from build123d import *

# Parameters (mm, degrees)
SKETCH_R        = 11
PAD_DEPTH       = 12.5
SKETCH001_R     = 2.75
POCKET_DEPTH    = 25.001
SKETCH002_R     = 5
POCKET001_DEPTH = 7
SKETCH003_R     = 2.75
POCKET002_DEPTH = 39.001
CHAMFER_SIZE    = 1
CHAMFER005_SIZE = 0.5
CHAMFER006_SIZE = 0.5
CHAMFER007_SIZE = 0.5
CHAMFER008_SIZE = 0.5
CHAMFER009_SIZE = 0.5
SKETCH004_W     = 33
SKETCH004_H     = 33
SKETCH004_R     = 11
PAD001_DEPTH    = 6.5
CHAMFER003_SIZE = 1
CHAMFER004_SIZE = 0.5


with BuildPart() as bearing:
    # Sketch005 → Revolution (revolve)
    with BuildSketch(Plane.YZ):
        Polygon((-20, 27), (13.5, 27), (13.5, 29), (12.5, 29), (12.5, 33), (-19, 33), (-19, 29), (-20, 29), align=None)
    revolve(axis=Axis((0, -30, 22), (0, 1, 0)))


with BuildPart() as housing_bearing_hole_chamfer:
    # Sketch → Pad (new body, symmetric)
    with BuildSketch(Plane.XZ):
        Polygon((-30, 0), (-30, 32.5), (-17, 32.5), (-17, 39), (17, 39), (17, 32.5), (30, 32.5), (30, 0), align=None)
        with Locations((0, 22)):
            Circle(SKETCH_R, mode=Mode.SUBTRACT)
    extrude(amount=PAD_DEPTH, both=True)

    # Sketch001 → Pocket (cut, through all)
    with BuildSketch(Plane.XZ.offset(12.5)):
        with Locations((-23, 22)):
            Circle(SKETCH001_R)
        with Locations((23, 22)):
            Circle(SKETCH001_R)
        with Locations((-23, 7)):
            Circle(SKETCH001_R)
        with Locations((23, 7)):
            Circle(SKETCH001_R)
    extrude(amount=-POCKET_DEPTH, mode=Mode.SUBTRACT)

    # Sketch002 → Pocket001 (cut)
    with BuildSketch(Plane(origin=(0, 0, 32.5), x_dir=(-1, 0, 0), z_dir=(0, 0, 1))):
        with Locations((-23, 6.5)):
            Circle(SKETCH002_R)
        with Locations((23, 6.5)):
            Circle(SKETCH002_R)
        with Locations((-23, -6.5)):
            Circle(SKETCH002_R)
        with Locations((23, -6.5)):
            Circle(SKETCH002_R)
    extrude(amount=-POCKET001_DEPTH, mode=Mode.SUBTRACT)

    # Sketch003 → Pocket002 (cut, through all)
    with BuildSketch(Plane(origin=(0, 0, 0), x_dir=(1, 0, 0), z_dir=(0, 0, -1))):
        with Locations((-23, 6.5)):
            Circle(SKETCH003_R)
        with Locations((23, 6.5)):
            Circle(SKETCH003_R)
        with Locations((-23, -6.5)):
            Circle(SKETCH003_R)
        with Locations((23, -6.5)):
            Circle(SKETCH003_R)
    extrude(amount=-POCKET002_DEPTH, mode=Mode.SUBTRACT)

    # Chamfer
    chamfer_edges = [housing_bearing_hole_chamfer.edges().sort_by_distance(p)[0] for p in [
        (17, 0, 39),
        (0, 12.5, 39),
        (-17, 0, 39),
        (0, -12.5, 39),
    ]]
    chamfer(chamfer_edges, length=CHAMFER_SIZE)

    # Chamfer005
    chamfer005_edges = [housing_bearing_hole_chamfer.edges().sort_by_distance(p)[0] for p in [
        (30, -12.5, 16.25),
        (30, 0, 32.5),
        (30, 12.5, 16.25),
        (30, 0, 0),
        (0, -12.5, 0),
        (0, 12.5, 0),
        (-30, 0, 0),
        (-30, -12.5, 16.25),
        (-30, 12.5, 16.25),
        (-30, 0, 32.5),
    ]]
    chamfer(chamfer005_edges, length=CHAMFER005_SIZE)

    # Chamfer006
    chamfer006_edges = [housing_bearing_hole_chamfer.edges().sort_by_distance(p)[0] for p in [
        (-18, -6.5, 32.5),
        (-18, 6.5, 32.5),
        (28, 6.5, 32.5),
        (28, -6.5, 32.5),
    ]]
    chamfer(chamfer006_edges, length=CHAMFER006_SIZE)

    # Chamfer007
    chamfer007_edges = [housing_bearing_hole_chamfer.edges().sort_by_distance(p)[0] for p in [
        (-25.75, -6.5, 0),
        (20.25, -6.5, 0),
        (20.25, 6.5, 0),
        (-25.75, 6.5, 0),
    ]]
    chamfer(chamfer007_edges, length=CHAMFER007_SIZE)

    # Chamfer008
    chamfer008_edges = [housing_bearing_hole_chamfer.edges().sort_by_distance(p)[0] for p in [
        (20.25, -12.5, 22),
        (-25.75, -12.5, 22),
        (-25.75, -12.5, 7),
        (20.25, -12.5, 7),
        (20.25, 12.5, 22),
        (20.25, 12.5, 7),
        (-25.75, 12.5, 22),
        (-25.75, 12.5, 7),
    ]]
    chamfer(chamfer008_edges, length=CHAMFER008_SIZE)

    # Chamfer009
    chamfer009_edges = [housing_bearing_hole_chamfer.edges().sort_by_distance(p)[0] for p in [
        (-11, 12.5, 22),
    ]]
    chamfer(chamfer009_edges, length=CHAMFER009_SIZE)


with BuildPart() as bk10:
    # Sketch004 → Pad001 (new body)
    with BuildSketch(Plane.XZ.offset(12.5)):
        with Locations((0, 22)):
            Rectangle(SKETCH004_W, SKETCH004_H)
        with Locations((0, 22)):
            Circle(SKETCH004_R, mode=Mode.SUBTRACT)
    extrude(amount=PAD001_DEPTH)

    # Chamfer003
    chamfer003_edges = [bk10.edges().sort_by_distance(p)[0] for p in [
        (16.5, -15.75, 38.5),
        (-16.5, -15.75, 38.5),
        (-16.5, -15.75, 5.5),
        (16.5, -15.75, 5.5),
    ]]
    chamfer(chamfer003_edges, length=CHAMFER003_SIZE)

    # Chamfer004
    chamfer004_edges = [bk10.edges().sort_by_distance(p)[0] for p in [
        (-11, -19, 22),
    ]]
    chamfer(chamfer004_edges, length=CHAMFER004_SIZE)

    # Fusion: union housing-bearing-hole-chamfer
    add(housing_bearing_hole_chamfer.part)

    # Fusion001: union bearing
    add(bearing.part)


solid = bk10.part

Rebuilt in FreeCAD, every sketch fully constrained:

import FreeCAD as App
import Part
import Sketcher


def edges_at(feature, points):
    """Names of the edges that pass closest to the given points."""
    edges = feature.Shape.Edges
    near = lambda p: min(range(len(edges)), key=lambda i: edges[i].distToShape(Part.Vertex(*p))[0])
    return sorted({f"Edge{near(p) + 1}" for p in points})

doc = App.newDocument("Part")
body = doc.addObject("PartDesign::Body", "Body")

sketch1 = doc.addObject("Sketcher::SketchObject", "Sketch")
body.addObject(sketch1)
sketch1.AttachmentSupport = (doc.YZ_Plane, [""])
sketch1.MapMode = "FlatFace"
sketch1.addGeometry([
    Part.LineSegment(App.Vector(-20, 27, 0), App.Vector(13.5, 27, 0)),
    Part.LineSegment(App.Vector(13.5, 27, 0), App.Vector(13.5, 29, 0)),
    Part.LineSegment(App.Vector(13.5, 29, 0), App.Vector(12.5, 29, 0)),
    Part.LineSegment(App.Vector(12.5, 29, 0), App.Vector(12.5, 33, 0)),
    Part.LineSegment(App.Vector(12.5, 33, 0), App.Vector(-19, 33, 0)),
    Part.LineSegment(App.Vector(-19, 33, 0), App.Vector(-19, 29, 0)),
    Part.LineSegment(App.Vector(-19, 29, 0), App.Vector(-20, 29, 0)),
    Part.LineSegment(App.Vector(-20, 29, 0), App.Vector(-20, 27, 0)),
], False)
sketch1.addGeometry(Part.LineSegment(App.Vector(-20, 22, 0), App.Vector(13.5, 22, 0)), True)
sketch1.addConstraint([
    Sketcher.Constraint("Coincident", 0, 2, 1, 1),
    Sketcher.Constraint("Coincident", 1, 2, 2, 1),
    Sketcher.Constraint("Coincident", 2, 2, 3, 1),
    Sketcher.Constraint("Coincident", 3, 2, 4, 1),
    Sketcher.Constraint("Coincident", 4, 2, 5, 1),
    Sketcher.Constraint("Coincident", 5, 2, 6, 1),
    Sketcher.Constraint("Coincident", 6, 2, 7, 1),
    Sketcher.Constraint("Coincident", 7, 2, 0, 1),
    Sketcher.Constraint("Horizontal", 0),
    Sketcher.Constraint("Vertical", 1),
    Sketcher.Constraint("Horizontal", 2),
    Sketcher.Constraint("Vertical", 3),
    Sketcher.Constraint("Horizontal", 4),
    Sketcher.Constraint("Vertical", 5),
    Sketcher.Constraint("Horizontal", 6),
    Sketcher.Constraint("Vertical", 7),
    Sketcher.Constraint("Horizontal", 8),
    Sketcher.Constraint("Horizontal", 2, 2, 5, 2),
    Sketcher.Constraint("Vertical", 7, 2, 8, 1),
    Sketcher.Constraint("Vertical", 1, 2, 8, 2),
    Sketcher.Constraint("Equal", 2, 6),
    Sketcher.Constraint("DistanceX", 2, 2, 2, 1, 1.0),
    Sketcher.Constraint("DistanceY", 1, 1, 1, 2, 2.0),
    Sketcher.Constraint("DistanceY", 3, 1, 3, 2, 4.0),
    Sketcher.Constraint("DistanceX", 0, 1, 0, 2, 33.5),
    Sketcher.Constraint("DistanceY", -1, 1, 0, 2, 27.0),
    Sketcher.Constraint("DistanceX", 4, 2, -1, 1, 19.0),
    Sketcher.Constraint("DistanceY", -1, 1, 8, 1, 22.0),
])
revolution = doc.addObject("PartDesign::Revolution", "Revolution")
body.addObject(revolution)
revolution.Profile = sketch1
revolution.ReferenceAxis = (sketch1, ["Axis0"])
revolution.Angle = 360
body2 = doc.addObject("PartDesign::Body", "Body001")

sketch2 = doc.addObject("Sketcher::SketchObject", "Sketch001")
body2.addObject(sketch2)
sketch2.AttachmentSupport = (doc.getObject("XZ_Plane001"), [""])
sketch2.MapMode = "FlatFace"
sketch2.addGeometry([
    Part.LineSegment(App.Vector(-30, 32, 0), App.Vector(-30, 0, 0)),
    Part.LineSegment(App.Vector(-30, 0, 0), App.Vector(30, 0, 0)),
    Part.LineSegment(App.Vector(30, 0, 0), App.Vector(30, 32, 0)),
    Part.LineSegment(App.Vector(30, 32, 0), App.Vector(17, 32, 0)),
    Part.LineSegment(App.Vector(17, 32, 0), App.Vector(17, 39, 0)),
    Part.LineSegment(App.Vector(17, 39, 0), App.Vector(-17, 39, 0)),
    Part.LineSegment(App.Vector(-17, 39, 0), App.Vector(-17, 32, 0)),
    Part.LineSegment(App.Vector(-17, 32, 0), App.Vector(-30, 32, 0)),
    Part.Circle(App.Vector(0, 22, 0), App.Vector(0, 0, 1), 11),
], False)
sketch2.addConstraint([
    Sketcher.Constraint("Coincident", 0, 2, 1, 1),
    Sketcher.Constraint("Coincident", 1, 2, 2, 1),
    Sketcher.Constraint("Coincident", 2, 2, 3, 1),
    Sketcher.Constraint("Coincident", 3, 2, 4, 1),
    Sketcher.Constraint("Coincident", 4, 2, 5, 1),
    Sketcher.Constraint("Coincident", 5, 2, 6, 1),
    Sketcher.Constraint("Coincident", 6, 2, 7, 1),
    Sketcher.Constraint("Coincident", 7, 2, 0, 1),
    Sketcher.Constraint("Vertical", 0),
    Sketcher.Constraint("Horizontal", 1),
    Sketcher.Constraint("Vertical", 2),
    Sketcher.Constraint("Horizontal", 3),
    Sketcher.Constraint("Vertical", 4),
    Sketcher.Constraint("Horizontal", 5),
    Sketcher.Constraint("Vertical", 6),
    Sketcher.Constraint("Horizontal", 7),
    Sketcher.Constraint("Symmetric", 0, 2, 1, 2, -1, 1),
    Sketcher.Constraint("Symmetric", 3, 2, 6, 2, -2),
    Sketcher.Constraint("PointOnObject", 8, 3, -2),
    Sketcher.Constraint("Diameter", 8, 22.0),
    Sketcher.Constraint("DistanceX", 1, 1, 1, 2, 60.0),
    Sketcher.Constraint("DistanceX", 3, 2, 3, 1, 13.0),
    Sketcher.Constraint("DistanceY", 0, 2, 0, 1, 32.5),
    Sketcher.Constraint("DistanceY", 4, 1, 4, 2, 6.5),
    Sketcher.Constraint("DistanceY", -1, 1, 8, 3, 22.0),
])
pad1 = doc.addObject("PartDesign::Pad", "Pad")
body2.addObject(pad1)
pad1.Profile = sketch2
pad1.Length = 25
pad1.Midplane = True

sketch3 = doc.addObject("Sketcher::SketchObject", "Sketch002")
body2.addObject(sketch3)
sketch3.AttachmentSupport = (doc.getObject("XZ_Plane001"), [""])
sketch3.MapMode = "FlatFace"
sketch3.AttachmentOffset = App.Placement(App.Vector(0, 0, 12.5), App.Rotation())
sketch3.addGeometry([
    Part.Circle(App.Vector(-23, 22, 0), App.Vector(0, 0, 1), 2.8),
    Part.Circle(App.Vector(23, 22, 0), App.Vector(0, 0, 1), 2.8),
    Part.Circle(App.Vector(-23, 7, 0), App.Vector(0, 0, 1), 2.8),
    Part.Circle(App.Vector(23, 7, 0), App.Vector(0, 0, 1), 2.8),
], False)
sketch3.addConstraint([
    Sketcher.Constraint("Equal", 0, 1),
    Sketcher.Constraint("Equal", 1, 2),
    Sketcher.Constraint("Equal", 2, 3),
    Sketcher.Constraint("Symmetric", 0, 3, 1, 3, -2),
    Sketcher.Constraint("Symmetric", 2, 3, 3, 3, -2),
    Sketcher.Constraint("Vertical", 0, 3, 2, 3),
    Sketcher.Constraint("Diameter", 0, 5.5),
    Sketcher.Constraint("DistanceX", 0, 3, -1, 1, 23.0),
    Sketcher.Constraint("DistanceY", -1, 1, 0, 3, 22.0),
    Sketcher.Constraint("DistanceY", -1, 1, 2, 3, 7.0),
])
pocket1 = doc.addObject("PartDesign::Pocket", "Pocket")
body2.addObject(pocket1)
pocket1.Profile = sketch3
pocket1.Type = "ThroughAll"

sketch4 = doc.addObject("Sketcher::SketchObject", "Sketch003")
body2.addObject(sketch4)
sketch4.AttachmentSupport = (doc.getObject("XY_Plane001"), [""])
sketch4.MapMode = "FlatFace"
sketch4.AttachmentOffset = App.Placement(App.Vector(0, 0, 32.5), App.Rotation())
sketch4.addGeometry([
    Part.Circle(App.Vector(23, -6, 0), App.Vector(0, 0, 1), 5),
    Part.Circle(App.Vector(-23, -6, 0), App.Vector(0, 0, 1), 5),
    Part.Circle(App.Vector(23, 6, 0), App.Vector(0, 0, 1), 5),
    Part.Circle(App.Vector(-23, 6, 0), App.Vector(0, 0, 1), 5),
], False)
sketch4.addConstraint([
    Sketcher.Constraint("Equal", 0, 1),
    Sketcher.Constraint("Equal", 1, 2),
    Sketcher.Constraint("Equal", 2, 3),
    Sketcher.Constraint("Symmetric", 1, 3, 2, 3, -1, 1),
    Sketcher.Constraint("Symmetric", 0, 3, 3, 3, -1, 1),
    Sketcher.Constraint("Symmetric", 0, 3, 1, 3, -2),
    Sketcher.Constraint("Diameter", 0, 10.0),
    Sketcher.Constraint("DistanceX", -1, 1, 0, 3, 23.0),
    Sketcher.Constraint("DistanceY", 0, 3, 2, 3, 13.0),
])
pocket2 = doc.addObject("PartDesign::Pocket", "Pocket001")
body2.addObject(pocket2)
pocket2.Profile = sketch4
pocket2.Length = 7

sketch5 = doc.addObject("Sketcher::SketchObject", "Sketch004")
body2.addObject(sketch5)
sketch5.AttachmentSupport = (doc.getObject("XY_Plane001"), [""])
sketch5.MapMode = "FlatFace"
sketch5.addGeometry([
    Part.Circle(App.Vector(-23, -6.5, 0), App.Vector(0, 0, 1), 2.8),
    Part.Circle(App.Vector(23, -6.5, 0), App.Vector(0, 0, 1), 2.8),
    Part.Circle(App.Vector(-23, 6.5, 0), App.Vector(0, 0, 1), 2.8),
    Part.Circle(App.Vector(23, 6.5, 0), App.Vector(0, 0, 1), 2.8),
], False)
sketch5.addConstraint([
    Sketcher.Constraint("Equal", 0, 1),
    Sketcher.Constraint("Equal", 1, 2),
    Sketcher.Constraint("Equal", 2, 3),
    Sketcher.Constraint("Symmetric", 1, 3, 2, 3, -1, 1),
    Sketcher.Constraint("Symmetric", 0, 3, 3, 3, -1, 1),
    Sketcher.Constraint("Symmetric", 0, 3, 1, 3, -2),
    Sketcher.Constraint("Diameter", 0, 5.5),
    Sketcher.Constraint("DistanceX", 0, 3, -1, 1, 23.0),
    Sketcher.Constraint("DistanceY", 0, 3, 2, 3, 13.0),
])
pocket3 = doc.addObject("PartDesign::Pocket", "Pocket002")
body2.addObject(pocket3)
pocket3.Profile = sketch5
pocket3.Type = "ThroughAll"
pocket3.Reversed = True
doc.recompute()

chamfer = doc.addObject("PartDesign::Chamfer", "Chamfer")
body2.addObject(chamfer)
chamfer.Base = (pocket3, edges_at(pocket3, [
    (17, 0, 39),
    (0, 12.5, 39),
    (-17, 0, 39),
    (0, -12.5, 39),
]))
chamfer.Size = 1
doc.recompute()

chamfer2 = doc.addObject("PartDesign::Chamfer", "Chamfer001")
body2.addObject(chamfer2)
chamfer2.Base = (chamfer, edges_at(chamfer, [
    (30, -12.5, 16.25),
    (30, 0, 32.5),
    (30, 12.5, 16.25),
    (30, 0, 0),
    (0, -12.5, 0),
    (0, 12.5, 0),
    (-30, 0, 0),
    (-30, -12.5, 16.25),
    (-30, 12.5, 16.25),
    (-30, 0, 32.5),
]))
chamfer2.Size = 0.5
doc.recompute()

chamfer3 = doc.addObject("PartDesign::Chamfer", "Chamfer002")
body2.addObject(chamfer3)
chamfer3.Base = (chamfer2, edges_at(chamfer2, [
    (-18, -6.5, 32.5),
    (-18, 6.5, 32.5),
    (28, 6.5, 32.5),
    (28, -6.5, 32.5),
]))
chamfer3.Size = 0.5
doc.recompute()

chamfer4 = doc.addObject("PartDesign::Chamfer", "Chamfer003")
body2.addObject(chamfer4)
chamfer4.Base = (chamfer3, edges_at(chamfer3, [
    (-25.75, -6.5, 0),
    (20.25, -6.5, 0),
    (20.25, 6.5, 0),
    (-25.75, 6.5, 0),
]))
chamfer4.Size = 0.5
doc.recompute()

chamfer5 = doc.addObject("PartDesign::Chamfer", "Chamfer004")
body2.addObject(chamfer5)
chamfer5.Base = (chamfer4, edges_at(chamfer4, [
    (20.25, -12.5, 22),
    (-25.75, -12.5, 22),
    (-25.75, -12.5, 7),
    (20.25, -12.5, 7),
    (20.25, 12.5, 22),
    (20.25, 12.5, 7),
    (-25.75, 12.5, 22),
    (-25.75, 12.5, 7),
]))
chamfer5.Size = 0.5
doc.recompute()

chamfer6 = doc.addObject("PartDesign::Chamfer", "Chamfer005")
body2.addObject(chamfer6)
chamfer6.Base = (chamfer5, edges_at(chamfer5, [(-11, 12.5, 22)]))
chamfer6.Size = 0.5
body3 = doc.addObject("PartDesign::Body", "Body002")

sketch6 = doc.addObject("Sketcher::SketchObject", "Sketch005")
body3.addObject(sketch6)
sketch6.AttachmentSupport = (doc.getObject("XZ_Plane002"), [""])
sketch6.MapMode = "FlatFace"
sketch6.AttachmentOffset = App.Placement(App.Vector(0, 0, 12.5), App.Rotation())
sketch6.addGeometry([
    Part.LineSegment(App.Vector(-16, 38, 0), App.Vector(-16, 6, 0)),
    Part.LineSegment(App.Vector(-16, 6, 0), App.Vector(16, 6, 0)),
    Part.LineSegment(App.Vector(16, 6, 0), App.Vector(16, 38, 0)),
    Part.LineSegment(App.Vector(16, 38, 0), App.Vector(-16, 38, 0)),
    Part.Circle(App.Vector(0, 22, 0), App.Vector(0, 0, 1), 11),
], False)
sketch6.addConstraint([
    Sketcher.Constraint("Coincident", 0, 2, 1, 1),
    Sketcher.Constraint("Coincident", 1, 2, 2, 1),
    Sketcher.Constraint("Coincident", 2, 2, 3, 1),
    Sketcher.Constraint("Coincident", 3, 2, 0, 1),
    Sketcher.Constraint("Vertical", 0),
    Sketcher.Constraint("Horizontal", 1),
    Sketcher.Constraint("Vertical", 2),
    Sketcher.Constraint("Horizontal", 3),
    Sketcher.Constraint("PointOnObject", 4, 3, -2),
    Sketcher.Constraint("Equal", 3, 0),
    Sketcher.Constraint("Diameter", 4, 22.0),
    Sketcher.Constraint("DistanceX", 1, 1, 1, 2, 33.0),
    Sketcher.Constraint("DistanceY", -1, 1, 4, 3, 22.0),
    Sketcher.Constraint("DistanceX", 0, 2, -1, 1, 16.5),
    Sketcher.Constraint("DistanceY", -1, 1, 0, 2, 5.5),
])
pad2 = doc.addObject("PartDesign::Pad", "Pad001")
body3.addObject(pad2)
pad2.Profile = sketch6
pad2.Length = 6.5
doc.recompute()

chamfer7 = doc.addObject("PartDesign::Chamfer", "Chamfer006")
body3.addObject(chamfer7)
chamfer7.Base = (pad2, edges_at(pad2, [
    (16.5, -15.75, 38.5),
    (-16.5, -15.75, 38.5),
    (-16.5, -15.75, 5.5),
    (16.5, -15.75, 5.5),
]))
chamfer7.Size = 1
doc.recompute()

chamfer8 = doc.addObject("PartDesign::Chamfer", "Chamfer007")
body3.addObject(chamfer8)
chamfer8.Base = (chamfer7, edges_at(chamfer7, [(-11, -19, 22)]))
chamfer8.Size = 0.5
doc.recompute()

boolean = doc.addObject("PartDesign::Boolean", "Boolean")
body3.addObject(boolean)
boolean.Type = "Fuse"
boolean.addObjects([body2])
doc.recompute()

boolean2 = doc.addObject("PartDesign::Boolean", "Boolean001")
body3.addObject(boolean2)
boolean2.Type = "Fuse"
boolean2.addObjects([body])

doc.recompute()
